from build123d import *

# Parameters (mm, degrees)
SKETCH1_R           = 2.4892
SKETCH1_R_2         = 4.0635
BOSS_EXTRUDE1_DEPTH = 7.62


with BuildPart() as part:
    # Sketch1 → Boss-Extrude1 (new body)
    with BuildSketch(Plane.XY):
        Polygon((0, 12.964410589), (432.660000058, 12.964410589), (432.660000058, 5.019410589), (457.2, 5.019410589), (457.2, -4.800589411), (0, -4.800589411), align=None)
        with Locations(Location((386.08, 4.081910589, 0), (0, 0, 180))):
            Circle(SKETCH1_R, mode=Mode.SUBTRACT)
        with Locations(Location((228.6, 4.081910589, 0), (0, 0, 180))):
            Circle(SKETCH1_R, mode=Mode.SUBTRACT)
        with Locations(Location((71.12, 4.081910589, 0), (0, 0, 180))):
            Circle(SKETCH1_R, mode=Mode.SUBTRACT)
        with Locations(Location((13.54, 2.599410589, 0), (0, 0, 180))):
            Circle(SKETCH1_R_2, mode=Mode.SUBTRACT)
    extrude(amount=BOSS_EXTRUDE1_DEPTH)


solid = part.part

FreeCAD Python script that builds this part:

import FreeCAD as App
import Part
import Sketcher
Q = App.Units.Quantity

doc = App.newDocument("Part")
body = doc.addObject("PartDesign::Body", "Body")

sketch1 = doc.addObject("Sketcher::SketchObject", "Sketch")
body.addObject(sketch1)
sketch1.AttachmentSupport = (doc.XY_Plane, [""])
sketch1.MapMode = "FlatFace"
sketch1.addGeometry([
    Part.LineSegment(App.Vector(432.66, 12.964411, 0), App.Vector(0, 12.964411, 0)),
    Part.LineSegment(App.Vector(0, 12.964411, 0), App.Vector(0, -4.800589, 0)),
    Part.LineSegment(App.Vector(0, -4.800589, 0), App.Vector(457.2, -4.800589, 0)),
    Part.LineSegment(App.Vector(457.2, -4.800589, 0), App.Vector(457.2, 5.019411, 0)),
    Part.LineSegment(App.Vector(457.2, 5.019411, 0), App.Vector(432.66, 5.019411, 0)),
    Part.LineSegment(App.Vector(432.66, 5.019411, 0), App.Vector(432.66, 12.964411, 0)),
    Part.Circle(App.Vector(386.08, 4.081911, 0), App.Vector(0, 0, 1), 2.4892),
    Part.Circle(App.Vector(228.6, 4.081911, 0), App.Vector(0, 0, 1), 2.4892),
    Part.Circle(App.Vector(13.54, 2.599411, 0), App.Vector(0, 0, 1), 4.0635),
    Part.Circle(App.Vector(71.12, 4.081911, 0), App.Vector(0, 0, 1), 2.4892),
], False)
sketch1.addConstraint([
    Sketcher.Constraint("Coincident", 0, 2, 1, 1),
    Sketcher.Constraint("Coincident", 1, 2, 2, 1),
    Sketcher.Constraint("Coincident", 2, 2, 3, 1),
    Sketcher.Constraint("Coincident", 3, 2, 4, 1),
    Sketcher.Constraint("Coincident", 4, 2, 5, 1),
    Sketcher.Constraint("Coincident", 5, 2, 0, 1),
    Sketcher.Constraint("Horizontal", 0),
    Sketcher.Constraint("Vertical", 1),
    Sketcher.Constraint("Horizontal", 2),
    Sketcher.Constraint("Vertical", 3),
    Sketcher.Constraint("Horizontal", 4),
    Sketcher.Constraint("Vertical", 5),
    Sketcher.Constraint("Equal", 6, 7),
    Sketcher.Constraint("Equal", 7, 9),
    Sketcher.Constraint("PointOnObject", 0, 2, -2),
    Sketcher.Constraint("Horizontal", 6, 3, 7, 3),
    Sketcher.Constraint("Horizontal", 7, 3, 9, 3),
    Sketcher.Constraint("DistanceX", 2, 1, 2, 2, Q("18 in")),
    Sketcher.Constraint("Diameter", 6, Q("0.196 in")),
    Sketcher.Constraint("DistanceX", -1, 1, 7, 3, Q("9 in")),
    Sketcher.Constraint("DistanceX", -1, 1, 6, 3, Q("15.2 in")),
    Sketcher.Constraint("DistanceX", -1, 1, 9, 3, Q("2.8 in")),
    Sketcher.Constraint("Diameter", 8, 8.127),
    Sketcher.Constraint("DistanceX", 0, 2, 0, 1, 432.66),
    Sketcher.Constraint("DistanceY", 1, 2, 1, 1, 17.765),
    Sketcher.Constraint("DistanceY", 3, 1, 3, 2, 9.82),
    Sketcher.Constraint("DistanceX", -1, 1, 8, 3, 13.54),
    Sketcher.Constraint("DistanceY", 8, 3, 7, 3, 1.4825),
    Sketcher.Constraint("DistanceY", 8, 3, 0, 2, 10.365),
    Sketcher.Constraint("DistanceY", -1, 1, 6, 3, 4.081911),
])
pad1 = doc.addObject("PartDesign::Pad", "Pad")
body.addObject(pad1)
pad1.Profile = sketch1
pad1.Length = Q("0.3 in")

doc.recompute()
